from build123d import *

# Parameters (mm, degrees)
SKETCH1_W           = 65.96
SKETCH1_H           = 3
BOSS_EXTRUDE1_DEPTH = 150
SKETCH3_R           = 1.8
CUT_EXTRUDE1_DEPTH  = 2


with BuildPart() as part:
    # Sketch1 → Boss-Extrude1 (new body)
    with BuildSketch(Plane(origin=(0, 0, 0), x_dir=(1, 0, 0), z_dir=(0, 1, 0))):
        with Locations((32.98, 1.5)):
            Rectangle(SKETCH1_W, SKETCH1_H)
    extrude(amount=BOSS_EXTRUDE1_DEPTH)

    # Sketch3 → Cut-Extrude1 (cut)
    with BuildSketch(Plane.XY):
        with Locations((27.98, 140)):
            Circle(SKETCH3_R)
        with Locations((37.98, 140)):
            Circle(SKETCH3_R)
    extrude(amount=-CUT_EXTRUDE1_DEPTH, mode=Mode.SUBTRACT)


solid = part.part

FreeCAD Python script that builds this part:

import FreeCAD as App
import Part
import Sketcher

V = App.Vector


def add_polygon(sketch, points):
    """Adds a closed chain of lines whose ends are joined by coincident constraints."""
    first, n = sketch.GeometryCount, len(points)
    for a, b in zip(points, points[1:] + points[:1]):
        sketch.addGeometry(Part.LineSegment(App.Vector(*a, 0), App.Vector(*b, 0)), False)
    for i in range(n):
        sketch.addConstraint(Sketcher.Constraint("Coincident", first + i, 2, first + (i + 1) % n, 1))

doc = App.newDocument("Part")
params = doc.addObject("Spreadsheet::Sheet", "Params")
for row, (alias, value) in enumerate([
    ("sketch1_height", "3 mm"),
    ("sketch1_width", "65.96 mm"),
    ("pad1_length", "150 mm"),
    ("sketch2_diameter", "3.6 mm"),
    ("pocket1_length", "2 mm"),
], start=1):
    params.set(f"A{row}", alias)
    params.set(f"B{row}", "=" + value)
    params.setAlias(f"B{row}", alias)

body = doc.addObject("PartDesign::Body", "Body")

# Sketch on XZ plane
sketch1 = body.newObject("Sketcher::SketchObject", "Sketch")
sketch1.AttachmentSupport = (doc.getObject("XZ_Plane"), [""])
sketch1.MapMode = "FlatFace"
add_polygon(sketch1, [(0, -3), (0, 0), (66, 0), (66, -3)])  # lines 0-3
sketch1.addConstraint([
    Sketcher.Constraint("Vertical", 0),
    Sketcher.Constraint("Horizontal", 1),
    Sketcher.Constraint("Vertical", 2),
    Sketcher.Constraint("Horizontal", 3),
    Sketcher.Constraint("Coincident", 0, 2, -1, 1),
    Sketcher.Constraint("DistanceY", 0, 1, 0, 2, 3.0),
    Sketcher.Constraint("DistanceX", 1, 1, 1, 2, 65.96),
])
sketch1.setExpression("Constraints[9]", "Params.sketch1_height")
sketch1.setExpression("Constraints[10]", "Params.sketch1_width")
pad1 = body.newObject("PartDesign::Pad", "Pad")
pad1.Profile = sketch1
pad1.setExpression("Length", "Params.pad1_length")
pad1.Reversed = True

# Sketch on XY plane
sketch2 = body.newObject("Sketcher::SketchObject", "Sketch001")
sketch2.AttachmentSupport = (doc.getObject("XY_Plane"), [""])
sketch2.MapMode = "FlatFace"
sketch2.addGeometry([
    Part.Circle(V(28, 140, 0), V(0, 0, 1), 1.8),
    Part.Circle(V(38, 140, 0), V(0, 0, 1), 1.8),
], False)
sketch2.addConstraint([
    Sketcher.Constraint("Equal", 0, 1),
    Sketcher.Constraint("Horizontal", 0, 3, 1, 3),
    Sketcher.Constraint("Diameter", 0, 3.6),
    Sketcher.Constraint("DistanceY", -1, 1, 0, 3, 140.0),
    Sketcher.Constraint("DistanceX", 0, 3, 1, 3, 10.0),
    Sketcher.Constraint("DistanceX", -1, 1, 0, 3, 27.98),
])
sketch2.setExpression("Constraints[2]", "Params.sketch2_diameter")
pocket1 = body.newObject("PartDesign::Pocket", "Pocket")
pocket1.Profile = sketch2
pocket1.setExpression("Length", "Params.pocket1_length")

doc.recompute()
